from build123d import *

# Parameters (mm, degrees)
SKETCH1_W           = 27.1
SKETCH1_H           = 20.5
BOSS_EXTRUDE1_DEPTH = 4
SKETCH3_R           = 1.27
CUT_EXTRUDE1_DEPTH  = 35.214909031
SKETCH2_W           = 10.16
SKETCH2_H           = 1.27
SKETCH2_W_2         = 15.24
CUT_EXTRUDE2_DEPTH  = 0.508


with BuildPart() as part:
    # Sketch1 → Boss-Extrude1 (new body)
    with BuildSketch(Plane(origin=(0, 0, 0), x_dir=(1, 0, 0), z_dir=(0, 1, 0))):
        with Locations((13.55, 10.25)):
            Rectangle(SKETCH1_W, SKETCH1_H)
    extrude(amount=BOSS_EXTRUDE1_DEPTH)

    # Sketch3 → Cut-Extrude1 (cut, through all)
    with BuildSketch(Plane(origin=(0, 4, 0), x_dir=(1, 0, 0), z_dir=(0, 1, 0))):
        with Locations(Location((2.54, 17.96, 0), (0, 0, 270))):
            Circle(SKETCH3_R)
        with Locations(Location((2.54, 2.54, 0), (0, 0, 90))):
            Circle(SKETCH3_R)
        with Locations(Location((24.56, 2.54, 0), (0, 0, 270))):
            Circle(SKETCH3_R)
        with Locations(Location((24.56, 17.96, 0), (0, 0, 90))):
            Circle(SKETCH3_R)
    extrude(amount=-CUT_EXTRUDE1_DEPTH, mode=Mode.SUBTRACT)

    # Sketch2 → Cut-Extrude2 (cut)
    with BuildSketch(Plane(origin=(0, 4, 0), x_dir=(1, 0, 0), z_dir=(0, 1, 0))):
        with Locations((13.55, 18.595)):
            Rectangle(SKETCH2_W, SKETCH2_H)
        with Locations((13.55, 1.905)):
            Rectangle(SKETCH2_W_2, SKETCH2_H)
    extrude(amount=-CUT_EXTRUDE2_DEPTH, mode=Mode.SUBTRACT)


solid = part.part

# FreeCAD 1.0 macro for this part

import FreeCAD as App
import Part
import Sketcher

V = App.Vector
Q = App.Units.Quantity


def add_polygon(sketch, points):
    """Adds a closed chain of lines whose ends are joined by coincident constraints."""
    first, n = sketch.GeometryCount, len(points)
    for a, b in zip(points, points[1:] + points[:1]):
        sketch.addGeometry(Part.LineSegment(App.Vector(*a, 0), App.Vector(*b, 0)), False)
    for i in range(n):
        sketch.addConstraint(Sketcher.Constraint("Coincident", first + i, 2, first + (i + 1) % n, 1))

doc = App.newDocument("Part")
body = doc.addObject("PartDesign::Body", "Body")

sketch1 = body.newObject("Sketcher::SketchObject", "Sketch")
sketch1.AttachmentSupport = (doc.getObject("XZ_Plane"), [""])
sketch1.MapMode = "FlatFace"
add_polygon(sketch1, [(0, -20), (0, 0), (27, 0), (27, -20)])
sketch1.addConstraint([
    Sketcher.Constraint("Vertical", 0),
    Sketcher.Constraint("Horizontal", 1),
    Sketcher.Constraint("Vertical", 2),
    Sketcher.Constraint("Horizontal", 3),
    Sketcher.Constraint("Coincident", 0, 2, -1, 1),
    Sketcher.Constraint("DistanceX", 1, 1, 1, 2, Q("27.1 mm")),
    Sketcher.Constraint("DistanceY", 0, 1, 0, 2, Q("20.5 mm")),
])
pad1 = body.newObject("PartDesign::Pad", "Pad")
pad1.Profile = sketch1
pad1.Length = 4
pad1.Reversed = True

sketch2 = body.newObject("Sketcher::SketchObject", "Sketch001")
sketch2.AttachmentSupport = (doc.getObject("XZ_Plane"), [""])
sketch2.MapMode = "FlatFace"
sketch2.AttachmentOffset = App.Placement(V(0, 0, -4), App.Rotation())
sketch2.addGeometry([
    Part.Circle(V(2.5, -18, 0), V(0, 0, 1), 1.3),
    Part.Circle(V(2.5, -2.5, 0), V(0, 0, 1), 1.3),
    Part.Circle(V(24.6, -2.5, 0), V(0, 0, 1), 1.3),
    Part.Circle(V(24.6, -18, 0), V(0, 0, 1), 1.3),
], False)
sketch2.addConstraint([
    Sketcher.Constraint("Equal", 0, 1),
    Sketcher.Constraint("Equal", 1, 2),
    Sketcher.Constraint("Equal", 2, 3),
    Sketcher.Constraint("Horizontal", 1, 3, 2, 3),
    Sketcher.Constraint("Horizontal", 0, 3, 3, 3),
    Sketcher.Constraint("Vertical", 0, 3, 1, 3),
    Sketcher.Constraint("Vertical", 2, 3, 3, 3),
    Sketcher.Constraint("Diameter", 0, Q("0.1 in")),
    Sketcher.Constraint("DistanceX", -1, 1, 0, 3, Q("0.1 in")),
    Sketcher.Constraint("DistanceY", 1, 3, -1, 1, Q("0.1 in")),
    Sketcher.Constraint("DistanceY", 0, 3, -1, 1, Q("17.96 mm")),
    Sketcher.Constraint("DistanceX", -1, 1, 2, 3, Q("24.56 mm")),
])
pocket1 = body.newObject("PartDesign::Pocket", "Pocket")
pocket1.Profile = sketch2
pocket1.Type = "ThroughAll"
pocket1.Reversed = True

sketch3 = body.newObject("Sketcher::SketchObject", "Sketch002")
sketch3.AttachmentSupport = (doc.getObject("XZ_Plane"), [""])
sketch3.MapMode = "FlatFace"
sketch3.AttachmentOffset = App.Placement(V(0, 0, -4), App.Rotation())
add_polygon(sketch3, [(8.5, -19.2), (8.5, -18), (18.6, -18), (18.6, -19.2)])
add_polygon(sketch3, [(5.9, -2.5), (5.9, -1.3), (21.2, -1.3), (21.2, -2.5)])
sketch3.addConstraint([
    Sketcher.Constraint("Vertical", 0),
    Sketcher.Constraint("Horizontal", 1),
    Sketcher.Constraint("Vertical", 2),
    Sketcher.Constraint("Horizontal", 3),
    Sketcher.Constraint("Vertical", 4),
    Sketcher.Constraint("Horizontal", 5),
    Sketcher.Constraint("Vertical", 6),
    Sketcher.Constraint("Horizontal", 7),
    Sketcher.Constraint("Equal", 2, 4),
    Sketcher.Constraint("DistanceX", 1, 1, 1, 2, Q("0.4 in")),
    Sketcher.Constraint("DistanceX", 5, 1, 5, 2, Q("0.6 in")),
    Sketcher.Constraint("DistanceY", 0, 1, 0, 2, Q("0.05 in")),
    Sketcher.Constraint("DistanceY", 6, 2, -1, 1, Q("0.1 in")),
    Sketcher.Constraint("DistanceX", 4, 2, 0, 2, Q("0.1 in")),
    Sketcher.Constraint("DistanceX", -1, 1, 0, 2, Q("8.47 mm")),
    Sketcher.Constraint("DistanceY", 0, 2, -1, 1, Q("17.96 mm")),
])
pocket2 = body.newObject("PartDesign::Pocket", "Pocket001")
pocket2.Profile = sketch3
pocket2.Length = Q("0.02 in")
pocket2.Reversed = True

doc.recompute()
